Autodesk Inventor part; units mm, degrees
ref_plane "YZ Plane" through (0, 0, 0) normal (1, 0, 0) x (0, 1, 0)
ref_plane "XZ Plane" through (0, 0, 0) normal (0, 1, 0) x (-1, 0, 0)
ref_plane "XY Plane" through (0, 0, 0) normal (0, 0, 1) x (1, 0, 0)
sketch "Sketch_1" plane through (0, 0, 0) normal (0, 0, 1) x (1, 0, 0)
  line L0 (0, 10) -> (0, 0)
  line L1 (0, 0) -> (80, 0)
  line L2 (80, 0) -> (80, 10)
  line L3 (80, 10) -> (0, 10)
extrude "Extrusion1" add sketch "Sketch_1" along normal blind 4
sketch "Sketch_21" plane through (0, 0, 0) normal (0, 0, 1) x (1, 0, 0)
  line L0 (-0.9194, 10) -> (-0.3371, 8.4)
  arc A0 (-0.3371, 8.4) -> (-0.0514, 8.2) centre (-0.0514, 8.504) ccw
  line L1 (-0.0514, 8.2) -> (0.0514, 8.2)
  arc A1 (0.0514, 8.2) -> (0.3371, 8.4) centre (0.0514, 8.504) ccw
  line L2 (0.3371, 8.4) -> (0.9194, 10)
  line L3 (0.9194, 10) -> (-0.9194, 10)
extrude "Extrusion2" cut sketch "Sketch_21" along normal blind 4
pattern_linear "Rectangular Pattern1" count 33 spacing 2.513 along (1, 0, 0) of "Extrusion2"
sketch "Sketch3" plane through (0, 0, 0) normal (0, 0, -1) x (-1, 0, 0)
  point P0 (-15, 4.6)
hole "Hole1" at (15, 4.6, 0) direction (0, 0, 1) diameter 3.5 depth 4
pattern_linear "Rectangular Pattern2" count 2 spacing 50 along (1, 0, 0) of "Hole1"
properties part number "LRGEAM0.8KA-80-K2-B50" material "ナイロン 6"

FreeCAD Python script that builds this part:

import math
import FreeCAD as App
import Part
import Sketcher
Q = App.Units.Quantity


def add_polygon(sketch, points):
    """Adds a closed chain of lines whose ends are joined by coincident constraints."""
    first, n = sketch.GeometryCount, len(points)
    for a, b in zip(points, points[1:] + points[:1]):
        sketch.addGeometry(Part.LineSegment(App.Vector(*a, 0), App.Vector(*b, 0)), False)
    for i in range(n):
        sketch.addConstraint(Sketcher.Constraint("Coincident", first + i, 2, first + (i + 1) % n, 1))

doc = App.newDocument("Part")
body = doc.addObject("PartDesign::Body", "Body")

# Sketch on XY plane
sketch1 = body.newObject("Sketcher::SketchObject", "Sketch")
sketch1.AttachmentSupport = (doc.getObject("XY_Plane"), [""])
sketch1.MapMode = "FlatFace"
add_polygon(sketch1, [(80, 10), (0, 10), (0, 0), (80, 0)])  # lines 0-3
sketch1.addConstraint([
    Sketcher.Constraint("Horizontal", 0),
    Sketcher.Constraint("Vertical", 1),
    Sketcher.Constraint("Horizontal", 2),
    Sketcher.Constraint("Vertical", 3),
    Sketcher.Constraint("Coincident", 1, 2, -1, 1),
    Sketcher.Constraint("DistanceX", 0, 2, 0, 1, Q("80 mm")),
    Sketcher.Constraint("DistanceY", 1, 2, 1, 1, Q("10 mm")),
])
pad1 = body.newObject("PartDesign::Pad", "Pad")
pad1.Profile = sketch1
pad1.Length = 4

# Sketch on XY plane
sketch2 = body.newObject("Sketcher::SketchObject", "Sketch001")
sketch2.AttachmentSupport = (doc.getObject("XY_Plane"), [""])
sketch2.MapMode = "FlatFace"
sketch2.addGeometry([
    Part.LineSegment(App.Vector(0.92, 10, 0), App.Vector(-0.92, 10, 0)),  # 0
    Part.LineSegment(App.Vector(-0.92, 10, 0), App.Vector(-0.34, 8.4, 0)),  # 1
    Part.ArcOfCircle(Part.Circle(App.Vector(-0.05, 8.5, 0), App.Vector(0, 0, 1), 0.3), math.radians(-160), math.radians(-90)),  # 2
    Part.LineSegment(App.Vector(-0.05, 8.2, 0), App.Vector(0.05, 8.2, 0)),  # 3
    Part.ArcOfCircle(Part.Circle(App.Vector(0.05, 8.5, 0), App.Vector(0, 0, 1), 0.3), math.radians(-90), math.radians(-20)),  # 4
    Part.LineSegment(App.Vector(0.34, 8.4, 0), App.Vector(0.92, 10, 0)),  # 5
], False)
sketch2.addConstraint([
    Sketcher.Constraint("Coincident", 0, 2, 1, 1),
    Sketcher.Constraint("Tangent", 1, 2, 2, 1),
    Sketcher.Constraint("Tangent", 2, 2, 3, 1),
    Sketcher.Constraint("Tangent", 3, 2, 4, 1),
    Sketcher.Constraint("Tangent", 4, 2, 5, 1),
    Sketcher.Constraint("Coincident", 5, 2, 0, 1),
    Sketcher.Constraint("Horizontal", 0),
    Sketcher.Constraint("Horizontal", 3),
    Sketcher.Constraint("Equal", 2, 4),
    Sketcher.Constraint("Symmetric", 1, 2, 4, 2, -2),
    Sketcher.Constraint("DistanceY", -1, 1, 0, 2, Q("10 mm")),
    Sketcher.Constraint("Radius", 2, Q("0.304 mm")),
    Sketcher.Constraint("DistanceY", -1, 1, 1, 2, Q("8.4 mm")),
    Sketcher.Constraint("DistanceY", -1, 1, 2, 2, Q("8.2 mm")),
    Sketcher.Constraint("DistanceX", 0, 2, 0, 1, Q("1.8388 mm")),
])
pocket1 = body.newObject("PartDesign::Pocket", "Pocket")
pocket1.Profile = sketch2
pocket1.Length = 4
pocket1.Reversed = True
doc.recompute()

linearpattern = body.newObject("PartDesign::LinearPattern", "LinearPattern")
linearpattern.Originals = [pocket1]
linearpattern.Direction = (doc.getObject("X_Axis"), [""])
linearpattern.Mode = "offset"
linearpattern.Offset = 2.513
linearpattern.Occurrences = 33
body.Tip = linearpattern

# Sketch on XY plane
sketch3 = body.newObject("Sketcher::SketchObject", "Sketch002")
sketch3.AttachmentSupport = (doc.getObject("XY_Plane"), [""])
sketch3.MapMode = "FlatFace"
sketch3.addGeometry(Part.Circle(App.Vector(15, 4.6, 0), App.Vector(0, 0, 1), 1.8), False)
sketch3.addConstraint([
    Sketcher.Constraint("Diameter", 0, Q("3.5 mm")),
    Sketcher.Constraint("DistanceX", -1, 1, 0, 3, Q("15 mm")),
    Sketcher.Constraint("DistanceY", -1, 1, 0, 3, Q("4.6 mm")),
])
doc.recompute()
hole = body.newObject("PartDesign::Hole", "Hole")
hole.Profile = sketch3
hole.ThreadType = "None"
hole.Diameter = 3.5
hole.DepthType = "Dimension"
hole.Depth = 4
hole.DrillPoint = "Flat"
hole.Reversed = True
doc.recompute()

linearpattern2 = body.newObject("PartDesign::LinearPattern", "LinearPattern001")
linearpattern2.Originals = [hole]
linearpattern2.Direction = (doc.getObject("X_Axis"), [""])
linearpattern2.Mode = "offset"
linearpattern2.Offset = 50
linearpattern2.Occurrences = 2
body.Tip = linearpattern2

doc.recompute()
